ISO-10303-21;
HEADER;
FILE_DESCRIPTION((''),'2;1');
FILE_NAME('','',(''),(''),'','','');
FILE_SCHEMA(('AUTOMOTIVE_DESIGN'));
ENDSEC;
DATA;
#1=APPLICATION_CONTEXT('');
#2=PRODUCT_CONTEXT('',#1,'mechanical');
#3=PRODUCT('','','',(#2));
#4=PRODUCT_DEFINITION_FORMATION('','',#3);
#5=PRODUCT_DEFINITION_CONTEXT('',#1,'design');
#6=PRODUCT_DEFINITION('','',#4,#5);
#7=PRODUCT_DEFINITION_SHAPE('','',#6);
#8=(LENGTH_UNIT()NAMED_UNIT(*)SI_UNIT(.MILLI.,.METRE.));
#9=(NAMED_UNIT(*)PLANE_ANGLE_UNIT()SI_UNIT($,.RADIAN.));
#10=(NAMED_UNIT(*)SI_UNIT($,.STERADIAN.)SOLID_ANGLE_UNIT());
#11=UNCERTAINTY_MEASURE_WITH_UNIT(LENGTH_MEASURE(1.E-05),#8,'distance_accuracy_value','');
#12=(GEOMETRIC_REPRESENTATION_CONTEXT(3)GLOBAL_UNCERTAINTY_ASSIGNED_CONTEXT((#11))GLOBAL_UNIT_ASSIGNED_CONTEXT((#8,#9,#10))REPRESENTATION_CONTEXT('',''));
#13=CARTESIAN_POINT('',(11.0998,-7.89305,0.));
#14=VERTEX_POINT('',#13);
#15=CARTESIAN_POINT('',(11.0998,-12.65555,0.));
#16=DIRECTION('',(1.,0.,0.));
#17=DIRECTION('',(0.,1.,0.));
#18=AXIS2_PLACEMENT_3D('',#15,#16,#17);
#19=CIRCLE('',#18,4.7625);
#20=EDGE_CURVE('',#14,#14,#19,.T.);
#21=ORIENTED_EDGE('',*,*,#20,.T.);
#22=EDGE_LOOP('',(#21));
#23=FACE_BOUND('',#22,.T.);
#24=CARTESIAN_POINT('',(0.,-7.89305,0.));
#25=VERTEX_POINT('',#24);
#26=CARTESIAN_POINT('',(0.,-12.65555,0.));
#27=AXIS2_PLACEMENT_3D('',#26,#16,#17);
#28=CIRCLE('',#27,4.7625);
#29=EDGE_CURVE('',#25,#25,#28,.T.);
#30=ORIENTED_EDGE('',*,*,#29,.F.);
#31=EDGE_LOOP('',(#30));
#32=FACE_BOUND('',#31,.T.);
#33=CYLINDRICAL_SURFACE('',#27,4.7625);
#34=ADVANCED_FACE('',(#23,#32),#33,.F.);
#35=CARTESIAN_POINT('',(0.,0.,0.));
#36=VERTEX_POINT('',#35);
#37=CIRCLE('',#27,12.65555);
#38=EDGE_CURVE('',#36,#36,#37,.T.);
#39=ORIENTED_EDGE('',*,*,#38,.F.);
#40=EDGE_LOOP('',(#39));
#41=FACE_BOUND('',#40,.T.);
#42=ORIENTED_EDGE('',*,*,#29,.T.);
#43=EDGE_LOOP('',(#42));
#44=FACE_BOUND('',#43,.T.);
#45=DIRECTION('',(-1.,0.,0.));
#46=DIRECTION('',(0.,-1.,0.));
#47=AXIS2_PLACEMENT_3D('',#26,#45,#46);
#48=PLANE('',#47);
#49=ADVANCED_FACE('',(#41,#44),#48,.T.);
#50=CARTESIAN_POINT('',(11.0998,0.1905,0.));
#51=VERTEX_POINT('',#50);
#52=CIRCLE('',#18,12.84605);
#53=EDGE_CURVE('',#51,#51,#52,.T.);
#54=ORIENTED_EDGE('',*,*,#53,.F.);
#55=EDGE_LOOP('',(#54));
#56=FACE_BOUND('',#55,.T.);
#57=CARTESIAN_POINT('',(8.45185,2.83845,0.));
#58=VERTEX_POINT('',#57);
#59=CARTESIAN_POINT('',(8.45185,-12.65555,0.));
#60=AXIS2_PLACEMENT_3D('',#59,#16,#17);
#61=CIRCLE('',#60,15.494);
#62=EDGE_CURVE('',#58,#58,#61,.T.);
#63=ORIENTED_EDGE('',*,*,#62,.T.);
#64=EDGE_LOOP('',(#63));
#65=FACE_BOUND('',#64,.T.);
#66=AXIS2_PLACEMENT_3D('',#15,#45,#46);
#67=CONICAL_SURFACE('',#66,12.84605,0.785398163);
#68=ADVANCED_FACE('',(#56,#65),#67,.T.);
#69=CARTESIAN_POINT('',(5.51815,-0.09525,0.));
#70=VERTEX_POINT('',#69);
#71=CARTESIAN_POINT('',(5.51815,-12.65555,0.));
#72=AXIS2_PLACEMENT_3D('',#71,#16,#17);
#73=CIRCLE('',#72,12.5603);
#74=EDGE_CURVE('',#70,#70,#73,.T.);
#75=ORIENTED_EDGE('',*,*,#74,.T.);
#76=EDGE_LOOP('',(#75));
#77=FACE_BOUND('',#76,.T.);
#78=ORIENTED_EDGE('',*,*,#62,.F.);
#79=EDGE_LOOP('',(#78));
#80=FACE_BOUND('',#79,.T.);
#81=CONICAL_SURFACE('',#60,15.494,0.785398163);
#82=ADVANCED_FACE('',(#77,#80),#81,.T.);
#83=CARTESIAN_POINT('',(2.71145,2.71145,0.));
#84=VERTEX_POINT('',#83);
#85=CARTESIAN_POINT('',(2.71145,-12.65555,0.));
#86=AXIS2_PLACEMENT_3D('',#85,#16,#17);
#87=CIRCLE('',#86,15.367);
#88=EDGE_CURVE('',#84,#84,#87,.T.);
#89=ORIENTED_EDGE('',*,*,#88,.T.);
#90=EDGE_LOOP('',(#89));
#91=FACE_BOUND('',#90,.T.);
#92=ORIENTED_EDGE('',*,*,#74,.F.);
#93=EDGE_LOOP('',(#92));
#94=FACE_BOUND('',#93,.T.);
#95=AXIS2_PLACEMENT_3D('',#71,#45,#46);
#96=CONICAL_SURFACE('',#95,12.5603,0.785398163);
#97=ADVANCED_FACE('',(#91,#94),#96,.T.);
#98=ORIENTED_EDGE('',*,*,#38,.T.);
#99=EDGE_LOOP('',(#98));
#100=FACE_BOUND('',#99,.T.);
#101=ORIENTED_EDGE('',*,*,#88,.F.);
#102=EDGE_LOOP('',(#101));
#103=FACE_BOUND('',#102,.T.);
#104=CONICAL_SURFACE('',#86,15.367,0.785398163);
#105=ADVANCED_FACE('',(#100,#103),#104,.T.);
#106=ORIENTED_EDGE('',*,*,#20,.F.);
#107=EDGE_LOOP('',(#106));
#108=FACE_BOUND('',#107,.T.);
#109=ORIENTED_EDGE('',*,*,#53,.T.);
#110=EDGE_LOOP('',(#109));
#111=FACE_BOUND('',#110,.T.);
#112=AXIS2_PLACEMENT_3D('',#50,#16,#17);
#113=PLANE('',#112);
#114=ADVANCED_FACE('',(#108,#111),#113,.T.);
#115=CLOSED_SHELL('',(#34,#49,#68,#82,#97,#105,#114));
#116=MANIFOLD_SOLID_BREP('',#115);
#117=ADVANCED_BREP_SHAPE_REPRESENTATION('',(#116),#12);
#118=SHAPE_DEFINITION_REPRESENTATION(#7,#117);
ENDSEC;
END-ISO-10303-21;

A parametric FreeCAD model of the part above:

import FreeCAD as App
import Part
import Sketcher
Q = App.Units.Quantity


def add_polygon(sketch, points):
    """Adds a closed chain of lines whose ends are joined by coincident constraints."""
    first, n = sketch.GeometryCount, len(points)
    for a, b in zip(points, points[1:] + points[:1]):
        sketch.addGeometry(Part.LineSegment(App.Vector(*a, 0), App.Vector(*b, 0)), False)
    for i in range(n):
        sketch.addConstraint(Sketcher.Constraint("Coincident", first + i, 2, first + (i + 1) % n, 1))

doc = App.newDocument("Part")
body = doc.addObject("PartDesign::Body", "Body")

# Sketch on XY plane
sketch1 = body.newObject("Sketcher::SketchObject", "Sketch")
sketch1.AttachmentSupport = (doc.getObject("XY_Plane"), [""])
sketch1.MapMode = "FlatFace"
add_polygon(sketch1, [(2.7, 2.7), (0, 0), (0, -12.7), (11.1, -12.7), (11.1, 0.2), (8.5, 2.8), (5.5, -0.1)])  # lines 0-6
sketch1.addGeometry(Part.LineSegment(App.Vector(11.1, -12.7, 0), App.Vector(0, -12.7, 0)), True)  # axis
sketch1.addConstraint([
    Sketcher.Constraint("Vertical", 1),
    Sketcher.Constraint("Horizontal", 2),
    Sketcher.Constraint("Vertical", 3),
    Sketcher.Constraint("Horizontal", 7),
    Sketcher.Constraint("Coincident", 0, 2, -1, 1),
    Sketcher.Constraint("Coincident", 7, 1, 2, 2),
    Sketcher.Constraint("PointOnObject", 7, 2, -2),
    Sketcher.Constraint("Perpendicular", 0, 4),
    Sketcher.Constraint("Perpendicular", 4, 5),
    Sketcher.Constraint("Perpendicular", 5, 6),
    Sketcher.Constraint("Angle", 0, Q("-135 deg")),
    Sketcher.Constraint("DistanceX", 2, 1, 2, 2, Q("0.437 in")),
    Sketcher.Constraint("DistanceY", 2, 2, 4, 2, Q("0.61 in")),
    Sketcher.Constraint("DistanceX", 6, 2, 4, 2, Q("0.226 in")),
    Sketcher.Constraint("DistanceY", 6, 2, 4, 2, Q("0.005 in")),
    Sketcher.Constraint("DistanceY", -1, 1, 3, 2, Q("0.0075 in")),
])
revolution = body.newObject("PartDesign::Revolution", "Revolution")
revolution.Profile = sketch1
revolution.ReferenceAxis = (sketch1, ["Axis0"])
revolution.Angle = 360

# Sketch on YZ plane
sketch2 = body.newObject("Sketcher::SketchObject", "Sketch001")
sketch2.AttachmentSupport = (doc.getObject("YZ_Plane"), [""])
sketch2.MapMode = "FlatFace"
sketch2.AttachmentOffset = App.Placement(App.Vector(0, 0, 0.437 * 25.4), App.Rotation())
sketch2.addGeometry(Part.Circle(App.Vector(-12.7, 0, 0), App.Vector(0, 0, 1), 4.8), False)
sketch2.addConstraint([
    Sketcher.Constraint("PointOnObject", 0, 3, -1),
    Sketcher.Constraint("Diameter", 0, Q("0.375 in")),
    Sketcher.Constraint("DistanceX", 0, 3, -1, 1, Q("12.65555 mm")),
])
pocket1 = body.newObject("PartDesign::Pocket", "Pocket")
pocket1.Profile = sketch2
pocket1.Type = "ThroughAll"

doc.recompute()
